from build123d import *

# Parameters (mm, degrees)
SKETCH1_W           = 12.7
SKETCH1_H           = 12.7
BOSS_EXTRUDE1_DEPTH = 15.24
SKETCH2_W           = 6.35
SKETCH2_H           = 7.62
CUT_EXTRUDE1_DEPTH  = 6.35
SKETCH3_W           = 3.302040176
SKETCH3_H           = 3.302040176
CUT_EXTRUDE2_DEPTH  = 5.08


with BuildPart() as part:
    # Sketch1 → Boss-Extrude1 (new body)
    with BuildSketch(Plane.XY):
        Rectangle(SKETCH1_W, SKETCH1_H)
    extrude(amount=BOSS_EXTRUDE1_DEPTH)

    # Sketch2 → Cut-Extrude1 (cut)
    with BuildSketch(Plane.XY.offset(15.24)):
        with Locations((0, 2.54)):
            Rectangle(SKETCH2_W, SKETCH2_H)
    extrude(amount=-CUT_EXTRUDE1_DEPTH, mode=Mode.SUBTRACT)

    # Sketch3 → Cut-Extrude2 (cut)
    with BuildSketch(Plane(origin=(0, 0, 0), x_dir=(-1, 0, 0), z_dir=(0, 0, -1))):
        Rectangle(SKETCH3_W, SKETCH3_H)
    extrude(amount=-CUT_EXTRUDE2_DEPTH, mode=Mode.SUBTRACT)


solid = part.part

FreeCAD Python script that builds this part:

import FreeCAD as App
import Part
import Sketcher

V = App.Vector
Q = App.Units.Quantity

doc = App.newDocument("Part")
params = doc.addObject("Spreadsheet::Sheet", "Params")
for row, (alias, value) in enumerate([
    ("sketch1_width", "0.5 in"),
    ("pad1_length", "0.6 in"),
    ("sketch2_height", "0.3 in"),
    ("sketch2_width", "0.25 in"),
    ("pocket1_length", "0.25 in"),
    ("pocket2_length", "0.2 in"),
], start=1):
    params.set(f"A{row}", alias)
    params.set(f"B{row}", "=" + value)
    params.setAlias(f"B{row}", alias)

body = doc.addObject("PartDesign::Body", "Body")

# Sketch on XY plane
sketch1 = body.newObject("Sketcher::SketchObject", "Sketch")
sketch1.AttachmentSupport = (doc.getObject("XY_Plane"), [""])
sketch1.MapMode = "FlatFace"
sketch1.addGeometry([
    Part.LineSegment(V(-6, 6, 0), V(-6, -6, 0)),
    Part.LineSegment(V(-6, -6, 0), V(6, -6, 0)),
    Part.LineSegment(V(6, -6, 0), V(6, 6, 0)),
    Part.LineSegment(V(6, 6, 0), V(-6, 6, 0)),
], False)
sketch1.addConstraint([
    Sketcher.Constraint("Coincident", 0, 2, 1, 1),
    Sketcher.Constraint("Coincident", 1, 2, 2, 1),
    Sketcher.Constraint("Coincident", 2, 2, 3, 1),
    Sketcher.Constraint("Coincident", 3, 2, 0, 1),
    Sketcher.Constraint("Vertical", 0),
    Sketcher.Constraint("Horizontal", 1),
    Sketcher.Constraint("Vertical", 2),
    Sketcher.Constraint("Horizontal", 3),
    Sketcher.Constraint("Symmetric", 0, 2, 2, 2, -1, 1),
    Sketcher.Constraint("Equal", 3, 0),
    Sketcher.Constraint("DistanceX", 1, 1, 1, 2, Q("0.5 in")),
])
sketch1.setExpression("Constraints[10]", "Params.sketch1_width")
pad1 = body.newObject("PartDesign::Pad", "Pad")
pad1.Profile = sketch1
pad1.setExpression("Length", "Params.pad1_length")

# Sketch on XY plane
sketch2 = body.newObject("Sketcher::SketchObject", "Sketch001")
sketch2.AttachmentSupport = (doc.getObject("XY_Plane"), [""])
sketch2.MapMode = "FlatFace"
sketch2.AttachmentOffset = App.Placement(V(0, 0, 0.6 * 25.4), App.Rotation())
sketch2.addGeometry([
    Part.LineSegment(V(-3, 6, 0), V(-3, -1, 0)),
    Part.LineSegment(V(-3, -1, 0), V(3, -1, 0)),
    Part.LineSegment(V(3, -1, 0), V(3, 6, 0)),
    Part.LineSegment(V(3, 6, 0), V(-3, 6, 0)),
], False)
sketch2.addConstraint([
    Sketcher.Constraint("Coincident", 0, 2, 1, 1),
    Sketcher.Constraint("Coincident", 1, 2, 2, 1),
    Sketcher.Constraint("Coincident", 2, 2, 3, 1),
    Sketcher.Constraint("Coincident", 3, 2, 0, 1),
    Sketcher.Constraint("Vertical", 0),
    Sketcher.Constraint("Horizontal", 1),
    Sketcher.Constraint("Vertical", 2),
    Sketcher.Constraint("Horizontal", 3),
    Sketcher.Constraint("DistanceY", 0, 2, 0, 1, Q("0.3 in")),
    Sketcher.Constraint("DistanceX", 1, 1, 1, 2, Q("0.25 in")),
    Sketcher.Constraint("DistanceY", 0, 2, -1, 1, Q("0.05 in")),
    Sketcher.Constraint("DistanceX", 0, 2, -1, 1, Q("0.125 in")),
])
sketch2.setExpression("Constraints[8]", "Params.sketch2_height")
sketch2.setExpression("Constraints[9]", "Params.sketch2_width")
pocket1 = body.newObject("PartDesign::Pocket", "Pocket")
pocket1.Profile = sketch2
pocket1.setExpression("Length", "Params.pocket1_length")

# Sketch on XY plane
sketch3 = body.newObject("Sketcher::SketchObject", "Sketch002")
sketch3.AttachmentSupport = (doc.getObject("XY_Plane"), [""])
sketch3.MapMode = "FlatFace"
sketch3.addGeometry([
    Part.LineSegment(V(1.7, 1.7, 0), V(1.7, -1.7, 0)),
    Part.LineSegment(V(1.7, -1.7, 0), V(-1.7, -1.7, 0)),
    Part.LineSegment(V(-1.7, -1.7, 0), V(-1.7, 1.7, 0)),
    Part.LineSegment(V(-1.7, 1.7, 0), V(1.7, 1.7, 0)),
], False)
sketch3.addConstraint([
    Sketcher.Constraint("Coincident", 0, 2, 1, 1),
    Sketcher.Constraint("Coincident", 1, 2, 2, 1),
    Sketcher.Constraint("Coincident", 2, 2, 3, 1),
    Sketcher.Constraint("Coincident", 3, 2, 0, 1),
    Sketcher.Constraint("Vertical", 0),
    Sketcher.Constraint("Horizontal", 1),
    Sketcher.Constraint("Vertical", 2),
    Sketcher.Constraint("Horizontal", 3),
    Sketcher.Constraint("Symmetric", 0, 2, 2, 2, -1, 1),
    Sketcher.Constraint("Equal", 3, 0),
    Sketcher.Constraint("DistanceX", 1, 2, 1, 1, 3.30204),
])
pocket2 = body.newObject("PartDesign::Pocket", "Pocket001")
pocket2.Profile = sketch3
pocket2.setExpression("Length", "Params.pocket2_length")
pocket2.Reversed = True

doc.recompute()
